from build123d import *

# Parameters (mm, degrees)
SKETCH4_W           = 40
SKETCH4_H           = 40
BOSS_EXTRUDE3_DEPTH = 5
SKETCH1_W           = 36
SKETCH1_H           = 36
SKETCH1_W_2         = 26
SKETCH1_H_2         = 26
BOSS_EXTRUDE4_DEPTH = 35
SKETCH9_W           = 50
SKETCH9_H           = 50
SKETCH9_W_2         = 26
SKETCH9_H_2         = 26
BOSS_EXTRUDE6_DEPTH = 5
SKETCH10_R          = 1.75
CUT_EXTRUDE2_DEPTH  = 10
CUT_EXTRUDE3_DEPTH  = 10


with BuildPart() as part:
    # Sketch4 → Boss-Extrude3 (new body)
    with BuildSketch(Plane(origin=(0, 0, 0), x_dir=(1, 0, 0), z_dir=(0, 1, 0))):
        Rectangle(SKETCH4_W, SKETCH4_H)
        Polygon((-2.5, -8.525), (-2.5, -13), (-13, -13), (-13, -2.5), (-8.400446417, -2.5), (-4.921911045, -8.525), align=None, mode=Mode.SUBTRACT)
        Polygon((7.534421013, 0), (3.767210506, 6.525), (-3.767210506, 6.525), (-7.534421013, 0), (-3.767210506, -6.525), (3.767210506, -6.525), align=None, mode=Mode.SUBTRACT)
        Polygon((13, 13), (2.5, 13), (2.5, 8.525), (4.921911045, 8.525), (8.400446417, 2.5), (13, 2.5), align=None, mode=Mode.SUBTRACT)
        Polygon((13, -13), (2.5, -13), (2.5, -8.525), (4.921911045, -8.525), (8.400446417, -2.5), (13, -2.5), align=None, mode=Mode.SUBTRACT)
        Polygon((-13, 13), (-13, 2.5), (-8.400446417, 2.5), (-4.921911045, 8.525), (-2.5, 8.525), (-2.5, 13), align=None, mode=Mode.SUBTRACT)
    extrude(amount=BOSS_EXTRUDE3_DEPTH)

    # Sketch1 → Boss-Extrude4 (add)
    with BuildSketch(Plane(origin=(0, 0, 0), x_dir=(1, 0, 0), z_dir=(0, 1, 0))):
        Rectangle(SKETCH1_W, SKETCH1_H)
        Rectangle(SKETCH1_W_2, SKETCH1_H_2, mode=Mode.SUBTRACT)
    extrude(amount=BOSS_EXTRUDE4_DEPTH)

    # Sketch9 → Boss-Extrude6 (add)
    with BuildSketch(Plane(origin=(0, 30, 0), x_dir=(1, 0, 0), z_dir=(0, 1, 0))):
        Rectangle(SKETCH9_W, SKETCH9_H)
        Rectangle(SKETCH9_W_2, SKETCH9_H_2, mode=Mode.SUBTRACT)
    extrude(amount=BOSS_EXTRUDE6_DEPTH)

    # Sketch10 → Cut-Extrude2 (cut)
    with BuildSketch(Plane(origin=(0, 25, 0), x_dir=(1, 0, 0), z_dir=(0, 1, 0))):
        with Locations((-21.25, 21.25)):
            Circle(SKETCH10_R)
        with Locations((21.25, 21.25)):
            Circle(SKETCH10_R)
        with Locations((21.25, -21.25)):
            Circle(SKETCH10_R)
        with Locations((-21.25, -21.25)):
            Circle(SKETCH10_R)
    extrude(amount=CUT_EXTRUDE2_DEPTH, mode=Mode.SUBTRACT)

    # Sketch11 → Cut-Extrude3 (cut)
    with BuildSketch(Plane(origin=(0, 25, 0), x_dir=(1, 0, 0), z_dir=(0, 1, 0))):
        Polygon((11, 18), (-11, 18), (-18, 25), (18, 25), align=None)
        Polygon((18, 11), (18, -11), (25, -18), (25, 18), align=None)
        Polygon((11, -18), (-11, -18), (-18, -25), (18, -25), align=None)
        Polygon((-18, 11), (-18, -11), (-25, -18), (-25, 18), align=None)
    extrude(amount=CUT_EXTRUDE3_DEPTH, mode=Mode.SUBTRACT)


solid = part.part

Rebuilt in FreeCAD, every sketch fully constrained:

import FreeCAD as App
import Part
import Sketcher
Q = App.Units.Quantity

doc = App.newDocument("Part")
body = doc.addObject("PartDesign::Body", "Body")

sketch1 = doc.addObject("Sketcher::SketchObject", "Sketch")
body.addObject(sketch1)
sketch1.AttachmentSupport = (doc.XZ_Plane, [""])
sketch1.MapMode = "FlatFace"
sketch1.addGeometry(Part.LineSegment(App.Vector(-20, -20, 0), App.Vector(-20, 20, 0)), False)
sketch1.addGeometry(Part.LineSegment(App.Vector(-20, 20, 0), App.Vector(20, 20, 0)), False)
sketch1.addGeometry(Part.LineSegment(App.Vector(20, 20, 0), App.Vector(20, -20, 0)), False)
sketch1.addGeometry(Part.LineSegment(App.Vector(20, -20, 0), App.Vector(-20, -20, 0)), False)
sketch1.addGeometry(Part.LineSegment(App.Vector(-4.921911, 8.525, 0), App.Vector(-2.5, 8.525, 0)), False)
sketch1.addGeometry(Part.LineSegment(App.Vector(-2.5, 8.525, 0), App.Vector(-2.5, 13, 0)), False)
sketch1.addGeometry(Part.LineSegment(App.Vector(-2.5, 13, 0), App.Vector(-13, 13, 0)), False)
sketch1.addGeometry(Part.LineSegment(App.Vector(-13, 13, 0), App.Vector(-13, 2.5, 0)), False)
sketch1.addGeometry(Part.LineSegment(App.Vector(-13, 2.5, 0), App.Vector(-8.400446, 2.5, 0)), False)
sketch1.addGeometry(Part.LineSegment(App.Vector(-8.400446, 2.5, 0), App.Vector(-4.921911, 8.525, 0)), False)
sketch1.addGeometry(Part.LineSegment(App.Vector(13, 2.5, 0), App.Vector(13, 13, 0)), False)
sketch1.addGeometry(Part.LineSegment(App.Vector(13, 13, 0), App.Vector(2.5, 13, 0)), False)
sketch1.addGeometry(Part.LineSegment(App.Vector(2.5, 13, 0), App.Vector(2.5, 8.525, 0)), False)
sketch1.addGeometry(Part.LineSegment(App.Vector(2.5, 8.525, 0), App.Vector(4.921911, 8.525, 0)), False)
sketch1.addGeometry(Part.LineSegment(App.Vector(4.921911, 8.525, 0), App.Vector(8.400446, 2.5, 0)), False)
sketch1.addGeometry(Part.LineSegment(App.Vector(8.400446, 2.5, 0), App.Vector(13, 2.5, 0)), False)
sketch1.addGeometry(Part.LineSegment(App.Vector(-13, -2.5, 0), App.Vector(-13, -13, 0)), False)
sketch1.addGeometry(Part.LineSegment(App.Vector(-13, -13, 0), App.Vector(-2.5, -13, 0)), False)
sketch1.addGeometry(Part.LineSegment(App.Vector(-2.5, -13, 0), App.Vector(-2.5, -8.525, 0)), False)
sketch1.addGeometry(Part.LineSegment(App.Vector(-2.5, -8.525, 0), App.Vector(-4.921911, -8.525, 0)), False)
sketch1.addGeometry(Part.LineSegment(App.Vector(-4.921911, -8.525, 0), App.Vector(-8.400446, -2.5, 0)), False)
sketch1.addGeometry(Part.LineSegment(App.Vector(-8.400446, -2.5, 0), App.Vector(-13, -2.5, 0)), False)
sketch1.addGeometry(Part.LineSegment(App.Vector(3.767211, -6.525, 0), App.Vector(7.534421, 0, 0)), False)
sketch1.addGeometry(Part.LineSegment(App.Vector(7.534421, 0, 0), App.Vector(3.767211, 6.525, 0)), False)
sketch1.addGeometry(Part.LineSegment(App.Vector(3.767211, 6.525, 0), App.Vector(-3.767211, 6.525, 0)), False)
sketch1.addGeometry(Part.LineSegment(App.Vector(-3.767211, 6.525, 0), App.Vector(-7.534421, 0, 0)), False)
sketch1.addGeometry(Part.LineSegment(App.Vector(-7.534421, 0, 0), App.Vector(-3.767211, -6.525, 0)), False)
sketch1.addGeometry(Part.LineSegment(App.Vector(-3.767211, -6.525, 0), App.Vector(3.767211, -6.525, 0)), False)
sketch1.addGeometry(Part.LineSegment(App.Vector(2.5, -13, 0), App.Vector(13, -13, 0)), False)
sketch1.addGeometry(Part.LineSegment(App.Vector(13, -13, 0), App.Vector(13, -2.5, 0)), False)
sketch1.addGeometry(Part.LineSegment(App.Vector(13, -2.5, 0), App.Vector(8.400446, -2.5, 0)), False)
sketch1.addGeometry(Part.LineSegment(App.Vector(8.400446, -2.5, 0), App.Vector(4.921911, -8.525, 0)), False)
sketch1.addGeometry(Part.LineSegment(App.Vector(4.921911, -8.525, 0), App.Vector(2.5, -8.525, 0)), False)
sketch1.addGeometry(Part.LineSegment(App.Vector(2.5, -8.525, 0), App.Vector(2.5, -13, 0)), False)
sketch1.addConstraint(Sketcher.Constraint("Coincident", 0, 2, 1, 1))
sketch1.addConstraint(Sketcher.Constraint("Coincident", 1, 2, 2, 1))
sketch1.addConstraint(Sketcher.Constraint("Coincident", 2, 2, 3, 1))
sketch1.addConstraint(Sketcher.Constraint("Coincident", 3, 2, 0, 1))
sketch1.addConstraint(Sketcher.Constraint("Coincident", 4, 2, 5, 1))
sketch1.addConstraint(Sketcher.Constraint("Coincident", 5, 2, 6, 1))
sketch1.addConstraint(Sketcher.Constraint("Coincident", 6, 2, 7, 1))
sketch1.addConstraint(Sketcher.Constraint("Coincident", 7, 2, 8, 1))
sketch1.addConstraint(Sketcher.Constraint("Coincident", 8, 2, 9, 1))
sketch1.addConstraint(Sketcher.Constraint("Coincident", 9, 2, 4, 1))
sketch1.addConstraint(Sketcher.Constraint("Coincident", 10, 2, 11, 1))
sketch1.addConstraint(Sketcher.Constraint("Coincident", 11, 2, 12, 1))
sketch1.addConstraint(Sketcher.Constraint("Coincident", 12, 2, 13, 1))
sketch1.addConstraint(Sketcher.Constraint("Coincident", 13, 2, 14, 1))
sketch1.addConstraint(Sketcher.Constraint("Coincident", 14, 2, 15, 1))
sketch1.addConstraint(Sketcher.Constraint("Coincident", 15, 2, 10, 1))
sketch1.addConstraint(Sketcher.Constraint("Coincident", 16, 2, 17, 1))
sketch1.addConstraint(Sketcher.Constraint("Coincident", 17, 2, 18, 1))
sketch1.addConstraint(Sketcher.Constraint("Coincident", 18, 2, 19, 1))
sketch1.addConstraint(Sketcher.Constraint("Coincident", 19, 2, 20, 1))
sketch1.addConstraint(Sketcher.Constraint("Coincident", 20, 2, 21, 1))
sketch1.addConstraint(Sketcher.Constraint("Coincident", 21, 2, 16, 1))
sketch1.addConstraint(Sketcher.Constraint("Coincident", 22, 2, 23, 1))
sketch1.addConstraint(Sketcher.Constraint("Coincident", 23, 2, 24, 1))
sketch1.addConstraint(Sketcher.Constraint("Coincident", 24, 2, 25, 1))
sketch1.addConstraint(Sketcher.Constraint("Coincident", 25, 2, 26, 1))
sketch1.addConstraint(Sketcher.Constraint("Coincident", 26, 2, 27, 1))
sketch1.addConstraint(Sketcher.Constraint("Coincident", 27, 2, 22, 1))
sketch1.addConstraint(Sketcher.Constraint("Coincident", 28, 2, 29, 1))
sketch1.addConstraint(Sketcher.Constraint("Coincident", 29, 2, 30, 1))
sketch1.addConstraint(Sketcher.Constraint("Coincident", 30, 2, 31, 1))
sketch1.addConstraint(Sketcher.Constraint("Coincident", 31, 2, 32, 1))
sketch1.addConstraint(Sketcher.Constraint("Coincident", 32, 2, 33, 1))
sketch1.addConstraint(Sketcher.Constraint("Coincident", 33, 2, 28, 1))
sketch1.addConstraint(Sketcher.Constraint("Vertical", 0))
sketch1.addConstraint(Sketcher.Constraint("Horizontal", 1))
sketch1.addConstraint(Sketcher.Constraint("Vertical", 2))
sketch1.addConstraint(Sketcher.Constraint("Horizontal", 3))
sketch1.addConstraint(Sketcher.Constraint("Horizontal", 4))
sketch1.addConstraint(Sketcher.Constraint("Vertical", 5))
sketch1.addConstraint(Sketcher.Constraint("Horizontal", 6))
sketch1.addConstraint(Sketcher.Constraint("Vertical", 7))
sketch1.addConstraint(Sketcher.Constraint("Horizontal", 8))
sketch1.addConstraint(Sketcher.Constraint("Vertical", 10))
sketch1.addConstraint(Sketcher.Constraint("Horizontal", 11))
sketch1.addConstraint(Sketcher.Constraint("Vertical", 12))
sketch1.addConstraint(Sketcher.Constraint("Horizontal", 13))
sketch1.addConstraint(Sketcher.Constraint("Horizontal", 15))
sketch1.addConstraint(Sketcher.Constraint("Vertical", 16))
sketch1.addConstraint(Sketcher.Constraint("Horizontal", 17))
sketch1.addConstraint(Sketcher.Constraint("Vertical", 18))
sketch1.addConstraint(Sketcher.Constraint("Horizontal", 19))
sketch1.addConstraint(Sketcher.Constraint("Horizontal", 21))
sketch1.addConstraint(Sketcher.Constraint("Horizontal", 24))
sketch1.addConstraint(Sketcher.Constraint("Horizontal", 27))
sketch1.addConstraint(Sketcher.Constraint("Horizontal", 28))
sketch1.addConstraint(Sketcher.Constraint("Vertical", 29))
sketch1.addConstraint(Sketcher.Constraint("Horizontal", 30))
sketch1.addConstraint(Sketcher.Constraint("Horizontal", 32))
sketch1.addConstraint(Sketcher.Constraint("Vertical", 33))
sketch1.addConstraint(Sketcher.Constraint("Symmetric", 0, 2, 2, 2, -1, 1))
sketch1.addConstraint(Sketcher.Constraint("Symmetric", 10, 2, 16, 2, -1, 1))
sketch1.addConstraint(Sketcher.Constraint("Symmetric", 12, 2, 18, 2, -1, 1))
sketch1.addConstraint(Sketcher.Constraint("Symmetric", 14, 2, 20, 2, -1, 1))
sketch1.addConstraint(Sketcher.Constraint("Symmetric", 22, 2, 25, 2, -1, 1))
sketch1.addConstraint(Sketcher.Constraint("Symmetric", 23, 2, 26, 2, -1, 1))
sketch1.addConstraint(Sketcher.Constraint("Symmetric", 6, 2, 28, 2, -1, 1))
sketch1.addConstraint(Sketcher.Constraint("Symmetric", 8, 2, 30, 2, -1, 1))
sketch1.addConstraint(Sketcher.Constraint("Symmetric", 9, 2, 31, 2, -1, 1))
sketch1.addConstraint(Sketcher.Constraint("Symmetric", 6, 2, 10, 2, -2))
sketch1.addConstraint(Sketcher.Constraint("Symmetric", 4, 2, 12, 2, -2))
sketch1.addConstraint(Sketcher.Constraint("Symmetric", 8, 2, 14, 2, -2))
sketch1.addConstraint(Sketcher.Constraint("PointOnObject", 22, 2, -1))
sketch1.addConstraint(Sketcher.Constraint("Parallel", 14, 20))
sketch1.addConstraint(Sketcher.Constraint("Parallel", 9, 22))
sketch1.addConstraint(Sketcher.Constraint("Parallel", 20, 23))
sketch1.addConstraint(Sketcher.Constraint("Parallel", 22, 25))
sketch1.addConstraint(Sketcher.Constraint("Vertical", 9, 2, 19, 2))
sketch1.addConstraint(Sketcher.Constraint("Vertical", 12, 2, 32, 2))
sketch1.addConstraint(Sketcher.Constraint("Equal", 3, 0))
sketch1.addConstraint(Sketcher.Constraint("Equal", 28, 7))
sketch1.addConstraint(Sketcher.Constraint("DistanceX", 1, 1, 1, 2, Q("40 mm")))
sketch1.addConstraint(Sketcher.Constraint("Angle", 9, Q("60 deg")))
sketch1.addConstraint(Sketcher.Constraint("DistanceX", 6, 2, 6, 1, Q("10.5 mm")))
sketch1.addConstraint(Sketcher.Constraint("DistanceY", -1, 1, 5, 2, Q("13 mm")))
sketch1.addConstraint(Sketcher.Constraint("DistanceX", 6, 2, -1, 1, Q("13 mm")))
sketch1.addConstraint(Sketcher.Constraint("DistanceY", 23, 2, 13, 2, Q("2 mm")))
sketch1.addConstraint(Sketcher.Constraint("DistanceY", 5, 1, 5, 2, Q("4.475 mm")))
sketch1.addConstraint(Sketcher.Constraint("DistanceX", 4, 1, 4, 2, Q("2.421911 mm")))
sketch1.addConstraint(Sketcher.Constraint("DistanceX", 24, 2, 24, 1, Q("7.534421 mm")))
pad1 = doc.addObject("PartDesign::Pad", "Pad")
body.addObject(pad1)
pad1.Profile = sketch1
pad1.Length = 5
pad1.Reversed = True

sketch2 = doc.addObject("Sketcher::SketchObject", "Sketch001")
body.addObject(sketch2)
sketch2.AttachmentSupport = (doc.XZ_Plane, [""])
sketch2.MapMode = "FlatFace"
sketch2.addGeometry(Part.LineSegment(App.Vector(-18, -18, 0), App.Vector(-18, 18, 0)), False)
sketch2.addGeometry(Part.LineSegment(App.Vector(-18, 18, 0), App.Vector(18, 18, 0)), False)
sketch2.addGeometry(Part.LineSegment(App.Vector(18, 18, 0), App.Vector(18, -18, 0)), False)
sketch2.addGeometry(Part.LineSegment(App.Vector(18, -18, 0), App.Vector(-18, -18, 0)), False)
sketch2.addGeometry(Part.LineSegment(App.Vector(13, 13, 0), App.Vector(-13, 13, 0)), False)
sketch2.addGeometry(Part.LineSegment(App.Vector(-13, 13, 0), App.Vector(-13, -13, 0)), False)
sketch2.addGeometry(Part.LineSegment(App.Vector(-13, -13, 0), App.Vector(13, -13, 0)), False)
sketch2.addGeometry(Part.LineSegment(App.Vector(13, -13, 0), App.Vector(13, 13, 0)), False)
sketch2.addConstraint(Sketcher.Constraint("Coincident", 0, 2, 1, 1))
sketch2.addConstraint(Sketcher.Constraint("Coincident", 1, 2, 2, 1))
sketch2.addConstraint(Sketcher.Constraint("Coincident", 2, 2, 3, 1))
sketch2.addConstraint(Sketcher.Constraint("Coincident", 3, 2, 0, 1))
sketch2.addConstraint(Sketcher.Constraint("Coincident", 4, 2, 5, 1))
sketch2.addConstraint(Sketcher.Constraint("Coincident", 5, 2, 6, 1))
sketch2.addConstraint(Sketcher.Constraint("Coincident", 6, 2, 7, 1))
sketch2.addConstraint(Sketcher.Constraint("Coincident", 7, 2, 4, 1))
sketch2.addConstraint(Sketcher.Constraint("Vertical", 0))
sketch2.addConstraint(Sketcher.Constraint("Horizontal", 1))
sketch2.addConstraint(Sketcher.Constraint("Vertical", 2))
sketch2.addConstraint(Sketcher.Constraint("Horizontal", 3))
sketch2.addConstraint(Sketcher.Constraint("Horizontal", 4))
sketch2.addConstraint(Sketcher.Constraint("Vertical", 5))
sketch2.addConstraint(Sketcher.Constraint("Horizontal", 6))
sketch2.addConstraint(Sketcher.Constraint("Vertical", 7))
sketch2.addConstraint(Sketcher.Constraint("Symmetric", 0, 2, 2, 2, -1, 1))
sketch2.addConstraint(Sketcher.Constraint("Symmetric", 4, 2, 6, 2, -1, 1))
sketch2.addConstraint(Sketcher.Constraint("Equal", 3, 0))
sketch2.addConstraint(Sketcher.Constraint("Equal", 6, 5))
sketch2.addConstraint(Sketcher.Constraint("DistanceX", 1, 1, 1, 2, Q("36 mm")))
sketch2.addConstraint(Sketcher.Constraint("DistanceX", 4, 2, 4, 1, Q("26 mm")))
pad2 = doc.addObject("PartDesign::Pad", "Pad001")
body.addObject(pad2)
pad2.Profile = sketch2
pad2.Length = 35
pad2.Reversed = True

sketch3 = doc.addObject("Sketcher::SketchObject", "Sketch002")
body.addObject(sketch3)
sketch3.AttachmentSupport = (doc.XZ_Plane, [""])
sketch3.MapMode = "FlatFace"
sketch3.AttachmentOffset = App.Placement(App.Vector(0, 0, -30), App.Rotation())
sketch3.addGeometry(Part.LineSegment(App.Vector(-25, -25, 0), App.Vector(-25, 25, 0)), False)
sketch3.addGeometry(Part.LineSegment(App.Vector(-25, 25, 0), App.Vector(25, 25, 0)), False)
sketch3.addGeometry(Part.LineSegment(App.Vector(25, 25, 0), App.Vector(25, -25, 0)), False)
sketch3.addGeometry(Part.LineSegment(App.Vector(25, -25, 0), App.Vector(-25, -25, 0)), False)
sketch3.addGeometry(Part.LineSegment(App.Vector(13, 13, 0), App.Vector(-13, 13, 0)), False)
sketch3.addGeometry(Part.LineSegment(App.Vector(-13, 13, 0), App.Vector(-13, -13, 0)), False)
sketch3.addGeometry(Part.LineSegment(App.Vector(-13, -13, 0), App.Vector(13, -13, 0)), False)
sketch3.addGeometry(Part.LineSegment(App.Vector(13, -13, 0), App.Vector(13, 13, 0)), False)
sketch3.addConstraint(Sketcher.Constraint("Coincident", 0, 2, 1, 1))
sketch3.addConstraint(Sketcher.Constraint("Coincident", 1, 2, 2, 1))
sketch3.addConstraint(Sketcher.Constraint("Coincident", 2, 2, 3, 1))
sketch3.addConstraint(Sketcher.Constraint("Coincident", 3, 2, 0, 1))
sketch3.addConstraint(Sketcher.Constraint("Coincident", 4, 2, 5, 1))
sketch3.addConstraint(Sketcher.Constraint("Coincident", 5, 2, 6, 1))
sketch3.addConstraint(Sketcher.Constraint("Coincident", 6, 2, 7, 1))
sketch3.addConstraint(Sketcher.Constraint("Coincident", 7, 2, 4, 1))
sketch3.addConstraint(Sketcher.Constraint("Vertical", 0))
sketch3.addConstraint(Sketcher.Constraint("Horizontal", 1))
sketch3.addConstraint(Sketcher.Constraint("Vertical", 2))
sketch3.addConstraint(Sketcher.Constraint("Horizontal", 3))
sketch3.addConstraint(Sketcher.Constraint("Horizontal", 4))
sketch3.addConstraint(Sketcher.Constraint("Vertical", 5))
sketch3.addConstraint(Sketcher.Constraint("Horizontal", 6))
sketch3.addConstraint(Sketcher.Constraint("Vertical", 7))
sketch3.addConstraint(Sketcher.Constraint("Symmetric", 0, 2, 2, 2, -1, 1))
sketch3.addConstraint(Sketcher.Constraint("Symmetric", 4, 2, 6, 2, -1, 1))
sketch3.addConstraint(Sketcher.Constraint("Equal", 3, 0))
sketch3.addConstraint(Sketcher.Constraint("Equal", 6, 5))
sketch3.addConstraint(Sketcher.Constraint("DistanceX", 1, 1, 1, 2, Q("50 mm")))
sketch3.addConstraint(Sketcher.Constraint("DistanceX", 4, 2, 4, 1, Q("26 mm")))
pad3 = doc.addObject("PartDesign::Pad", "Pad002")
body.addObject(pad3)
pad3.Profile = sketch3
pad3.Length = 5
pad3.Reversed = True

sketch4 = doc.addObject("Sketcher::SketchObject", "Sketch003")
body.addObject(sketch4)
sketch4.AttachmentSupport = (doc.XZ_Plane, [""])
sketch4.MapMode = "FlatFace"
sketch4.AttachmentOffset = App.Placement(App.Vector(0, 0, -25), App.Rotation())
sketch4.addGeometry(Part.Circle(App.Vector(-21.25, -21.25, 0), App.Vector(0, 0, 1), 1.75), False)
sketch4.addGeometry(Part.Circle(App.Vector(21.25, -21.25, 0), App.Vector(0, 0, 1), 1.75), False)
sketch4.addGeometry(Part.Circle(App.Vector(21.25, 21.25, 0), App.Vector(0, 0, 1), 1.75), False)
sketch4.addGeometry(Part.Circle(App.Vector(-21.25, 21.25, 0), App.Vector(0, 0, 1), 1.75), False)
sketch4.addConstraint(Sketcher.Constraint("Equal", 0, 1))
sketch4.addConstraint(Sketcher.Constraint("Equal", 1, 2))
sketch4.addConstraint(Sketcher.Constraint("Equal", 2, 3))
sketch4.addConstraint(Sketcher.Constraint("Symmetric", 0, 3, 2, 3, -1, 1))
sketch4.addConstraint(Sketcher.Constraint("Symmetric", 1, 3, 3, 3, -1, 1))
sketch4.addConstraint(Sketcher.Constraint("Symmetric", 0, 3, 1, 3, -2))
sketch4.addConstraint(Sketcher.Constraint("Diameter", 0, Q("3.5 mm")))
sketch4.addConstraint(Sketcher.Constraint("DistanceX", 0, 3, 1, 3, Q("42.5 mm")))
sketch4.addConstraint(Sketcher.Constraint("DistanceY", 1, 3, 2, 3, Q("42.5 mm")))
pocket1 = doc.addObject("PartDesign::Pocket", "Pocket")
body.addObject(pocket1)
pocket1.Profile = sketch4
pocket1.Length = 10

sketch5 = doc.addObject("Sketcher::SketchObject", "Sketch004")
body.addObject(sketch5)
sketch5.AttachmentSupport = (doc.XZ_Plane, [""])
sketch5.MapMode = "FlatFace"
sketch5.AttachmentOffset = App.Placement(App.Vector(0, 0, -25), App.Rotation())
sketch5.addGeometry(Part.LineSegment(App.Vector(-11, -18, 0), App.Vector(11, -18, 0)), False)
sketch5.addGeometry(Part.LineSegment(App.Vector(11, -18, 0), App.Vector(18, -25, 0)), False)
sketch5.addGeometry(Part.LineSegment(App.Vector(18, -25, 0), App.Vector(-18, -25, 0)), False)
sketch5.addGeometry(Part.LineSegment(App.Vector(-18, -25, 0), App.Vector(-11, -18, 0)), False)
sketch5.addGeometry(Part.LineSegment(App.Vector(18, -11, 0), App.Vector(18, 11, 0)), False)
sketch5.addGeometry(Part.LineSegment(App.Vector(18, 11, 0), App.Vector(25, 18, 0)), False)
sketch5.addGeometry(Part.LineSegment(App.Vector(25, 18, 0), App.Vector(25, -18, 0)), False)
sketch5.addGeometry(Part.LineSegment(App.Vector(25, -18, 0), App.Vector(18, -11, 0)), False)
sketch5.addGeometry(Part.LineSegment(App.Vector(11, 18, 0), App.Vector(-11, 18, 0)), False)
sketch5.addGeometry(Part.LineSegment(App.Vector(-11, 18, 0), App.Vector(-18, 25, 0)), False)
sketch5.addGeometry(Part.LineSegment(App.Vector(-18, 25, 0), App.Vector(18, 25, 0)), False)
sketch5.addGeometry(Part.LineSegment(App.Vector(18, 25, 0), App.Vector(11, 18, 0)), False)
sketch5.addGeometry(Part.LineSegment(App.Vector(-18, 11, 0), App.Vector(-18, -11, 0)), False)
sketch5.addGeometry(Part.LineSegment(App.Vector(-18, -11, 0), App.Vector(-25, -18, 0)), False)
sketch5.addGeometry(Part.LineSegment(App.Vector(-25, -18, 0), App.Vector(-25, 18, 0)), False)
sketch5.addGeometry(Part.LineSegment(App.Vector(-25, 18, 0), App.Vector(-18, 11, 0)), False)
sketch5.addConstraint(Sketcher.Constraint("Coincident", 0, 2, 1, 1))
sketch5.addConstraint(Sketcher.Constraint("Coincident", 1, 2, 2, 1))
sketch5.addConstraint(Sketcher.Constraint("Coincident", 2, 2, 3, 1))
sketch5.addConstraint(Sketcher.Constraint("Coincident", 3, 2, 0, 1))
sketch5.addConstraint(Sketcher.Constraint("Coincident", 4, 2, 5, 1))
sketch5.addConstraint(Sketcher.Constraint("Coincident", 5, 2, 6, 1))
sketch5.addConstraint(Sketcher.Constraint("Coincident", 6, 2, 7, 1))
sketch5.addConstraint(Sketcher.Constraint("Coincident", 7, 2, 4, 1))
sketch5.addConstraint(Sketcher.Constraint("Coincident", 8, 2, 9, 1))
sketch5.addConstraint(Sketcher.Constraint("Coincident", 9, 2, 10, 1))
sketch5.addConstraint(Sketcher.Constraint("Coincident", 10, 2, 11, 1))
sketch5.addConstraint(Sketcher.Constraint("Coincident", 11, 2, 8, 1))
sketch5.addConstraint(Sketcher.Constraint("Coincident", 12, 2, 13, 1))
sketch5.addConstraint(Sketcher.Constraint("Coincident", 13, 2, 14, 1))
sketch5.addConstraint(Sketcher.Constraint("Coincident", 14, 2, 15, 1))
sketch5.addConstraint(Sketcher.Constraint("Coincident", 15, 2, 12, 1))
sketch5.addConstraint(Sketcher.Constraint("Horizontal", 0))
sketch5.addConstraint(Sketcher.Constraint("Horizontal", 2))
sketch5.addConstraint(Sketcher.Constraint("Vertical", 4))
sketch5.addConstraint(Sketcher.Constraint("Vertical", 6))
sketch5.addConstraint(Sketcher.Constraint("Horizontal", 8))
sketch5.addConstraint(Sketcher.Constraint("Horizontal", 10))
sketch5.addConstraint(Sketcher.Constraint("Vertical", 12))
sketch5.addConstraint(Sketcher.Constraint("Vertical", 14))
sketch5.addConstraint(Sketcher.Constraint("Symmetric", 0, 2, 8, 2, -1, 1))
sketch5.addConstraint(Sketcher.Constraint("Symmetric", 1, 2, 9, 2, -1, 1))
sketch5.addConstraint(Sketcher.Constraint("Symmetric", 4, 2, 12, 2, -1, 1))
sketch5.addConstraint(Sketcher.Constraint("Symmetric", 5, 2, 13, 2, -1, 1))
sketch5.addConstraint(Sketcher.Constraint("Perpendicular", 1, 3))
sketch5.addConstraint(Sketcher.Constraint("Parallel", 3, 5))
sketch5.addConstraint(Sketcher.Constraint("Perpendicular", 5, 7))
sketch5.addConstraint(Sketcher.Constraint("Perpendicular", 9, 11))
sketch5.addConstraint(Sketcher.Constraint("Perpendicular", 13, 15))
sketch5.addConstraint(Sketcher.Constraint("Horizontal", 3, 2, 6, 2))
sketch5.addConstraint(Sketcher.Constraint("Horizontal", 5, 2, 8, 2))
sketch5.addConstraint(Sketcher.Constraint("Horizontal", 7, 2, 12, 2))
sketch5.addConstraint(Sketcher.Constraint("Horizontal", 11, 2, 14, 2))
sketch5.addConstraint(Sketcher.Constraint("Vertical", 1, 2, 4, 2))
sketch5.addConstraint(Sketcher.Constraint("Vertical", 3, 2, 8, 2))
sketch5.addConstraint(Sketcher.Constraint("Vertical", 7, 2, 10, 2))
sketch5.addConstraint(Sketcher.Constraint("Equal", 8, 4))
sketch5.addConstraint(Sketcher.Constraint("Equal", 10, 6))
sketch5.addConstraint(Sketcher.Constraint("DistanceX", 0, 1, 0, 2, Q("22 mm")))
sketch5.addConstraint(Sketcher.Constraint("DistanceX", 2, 2, 2, 1, Q("36 mm")))
pocket2 = doc.addObject("PartDesign::Pocket", "Pocket001")
body.addObject(pocket2)
pocket2.Profile = sketch5
pocket2.Length = 10

doc.recompute()
